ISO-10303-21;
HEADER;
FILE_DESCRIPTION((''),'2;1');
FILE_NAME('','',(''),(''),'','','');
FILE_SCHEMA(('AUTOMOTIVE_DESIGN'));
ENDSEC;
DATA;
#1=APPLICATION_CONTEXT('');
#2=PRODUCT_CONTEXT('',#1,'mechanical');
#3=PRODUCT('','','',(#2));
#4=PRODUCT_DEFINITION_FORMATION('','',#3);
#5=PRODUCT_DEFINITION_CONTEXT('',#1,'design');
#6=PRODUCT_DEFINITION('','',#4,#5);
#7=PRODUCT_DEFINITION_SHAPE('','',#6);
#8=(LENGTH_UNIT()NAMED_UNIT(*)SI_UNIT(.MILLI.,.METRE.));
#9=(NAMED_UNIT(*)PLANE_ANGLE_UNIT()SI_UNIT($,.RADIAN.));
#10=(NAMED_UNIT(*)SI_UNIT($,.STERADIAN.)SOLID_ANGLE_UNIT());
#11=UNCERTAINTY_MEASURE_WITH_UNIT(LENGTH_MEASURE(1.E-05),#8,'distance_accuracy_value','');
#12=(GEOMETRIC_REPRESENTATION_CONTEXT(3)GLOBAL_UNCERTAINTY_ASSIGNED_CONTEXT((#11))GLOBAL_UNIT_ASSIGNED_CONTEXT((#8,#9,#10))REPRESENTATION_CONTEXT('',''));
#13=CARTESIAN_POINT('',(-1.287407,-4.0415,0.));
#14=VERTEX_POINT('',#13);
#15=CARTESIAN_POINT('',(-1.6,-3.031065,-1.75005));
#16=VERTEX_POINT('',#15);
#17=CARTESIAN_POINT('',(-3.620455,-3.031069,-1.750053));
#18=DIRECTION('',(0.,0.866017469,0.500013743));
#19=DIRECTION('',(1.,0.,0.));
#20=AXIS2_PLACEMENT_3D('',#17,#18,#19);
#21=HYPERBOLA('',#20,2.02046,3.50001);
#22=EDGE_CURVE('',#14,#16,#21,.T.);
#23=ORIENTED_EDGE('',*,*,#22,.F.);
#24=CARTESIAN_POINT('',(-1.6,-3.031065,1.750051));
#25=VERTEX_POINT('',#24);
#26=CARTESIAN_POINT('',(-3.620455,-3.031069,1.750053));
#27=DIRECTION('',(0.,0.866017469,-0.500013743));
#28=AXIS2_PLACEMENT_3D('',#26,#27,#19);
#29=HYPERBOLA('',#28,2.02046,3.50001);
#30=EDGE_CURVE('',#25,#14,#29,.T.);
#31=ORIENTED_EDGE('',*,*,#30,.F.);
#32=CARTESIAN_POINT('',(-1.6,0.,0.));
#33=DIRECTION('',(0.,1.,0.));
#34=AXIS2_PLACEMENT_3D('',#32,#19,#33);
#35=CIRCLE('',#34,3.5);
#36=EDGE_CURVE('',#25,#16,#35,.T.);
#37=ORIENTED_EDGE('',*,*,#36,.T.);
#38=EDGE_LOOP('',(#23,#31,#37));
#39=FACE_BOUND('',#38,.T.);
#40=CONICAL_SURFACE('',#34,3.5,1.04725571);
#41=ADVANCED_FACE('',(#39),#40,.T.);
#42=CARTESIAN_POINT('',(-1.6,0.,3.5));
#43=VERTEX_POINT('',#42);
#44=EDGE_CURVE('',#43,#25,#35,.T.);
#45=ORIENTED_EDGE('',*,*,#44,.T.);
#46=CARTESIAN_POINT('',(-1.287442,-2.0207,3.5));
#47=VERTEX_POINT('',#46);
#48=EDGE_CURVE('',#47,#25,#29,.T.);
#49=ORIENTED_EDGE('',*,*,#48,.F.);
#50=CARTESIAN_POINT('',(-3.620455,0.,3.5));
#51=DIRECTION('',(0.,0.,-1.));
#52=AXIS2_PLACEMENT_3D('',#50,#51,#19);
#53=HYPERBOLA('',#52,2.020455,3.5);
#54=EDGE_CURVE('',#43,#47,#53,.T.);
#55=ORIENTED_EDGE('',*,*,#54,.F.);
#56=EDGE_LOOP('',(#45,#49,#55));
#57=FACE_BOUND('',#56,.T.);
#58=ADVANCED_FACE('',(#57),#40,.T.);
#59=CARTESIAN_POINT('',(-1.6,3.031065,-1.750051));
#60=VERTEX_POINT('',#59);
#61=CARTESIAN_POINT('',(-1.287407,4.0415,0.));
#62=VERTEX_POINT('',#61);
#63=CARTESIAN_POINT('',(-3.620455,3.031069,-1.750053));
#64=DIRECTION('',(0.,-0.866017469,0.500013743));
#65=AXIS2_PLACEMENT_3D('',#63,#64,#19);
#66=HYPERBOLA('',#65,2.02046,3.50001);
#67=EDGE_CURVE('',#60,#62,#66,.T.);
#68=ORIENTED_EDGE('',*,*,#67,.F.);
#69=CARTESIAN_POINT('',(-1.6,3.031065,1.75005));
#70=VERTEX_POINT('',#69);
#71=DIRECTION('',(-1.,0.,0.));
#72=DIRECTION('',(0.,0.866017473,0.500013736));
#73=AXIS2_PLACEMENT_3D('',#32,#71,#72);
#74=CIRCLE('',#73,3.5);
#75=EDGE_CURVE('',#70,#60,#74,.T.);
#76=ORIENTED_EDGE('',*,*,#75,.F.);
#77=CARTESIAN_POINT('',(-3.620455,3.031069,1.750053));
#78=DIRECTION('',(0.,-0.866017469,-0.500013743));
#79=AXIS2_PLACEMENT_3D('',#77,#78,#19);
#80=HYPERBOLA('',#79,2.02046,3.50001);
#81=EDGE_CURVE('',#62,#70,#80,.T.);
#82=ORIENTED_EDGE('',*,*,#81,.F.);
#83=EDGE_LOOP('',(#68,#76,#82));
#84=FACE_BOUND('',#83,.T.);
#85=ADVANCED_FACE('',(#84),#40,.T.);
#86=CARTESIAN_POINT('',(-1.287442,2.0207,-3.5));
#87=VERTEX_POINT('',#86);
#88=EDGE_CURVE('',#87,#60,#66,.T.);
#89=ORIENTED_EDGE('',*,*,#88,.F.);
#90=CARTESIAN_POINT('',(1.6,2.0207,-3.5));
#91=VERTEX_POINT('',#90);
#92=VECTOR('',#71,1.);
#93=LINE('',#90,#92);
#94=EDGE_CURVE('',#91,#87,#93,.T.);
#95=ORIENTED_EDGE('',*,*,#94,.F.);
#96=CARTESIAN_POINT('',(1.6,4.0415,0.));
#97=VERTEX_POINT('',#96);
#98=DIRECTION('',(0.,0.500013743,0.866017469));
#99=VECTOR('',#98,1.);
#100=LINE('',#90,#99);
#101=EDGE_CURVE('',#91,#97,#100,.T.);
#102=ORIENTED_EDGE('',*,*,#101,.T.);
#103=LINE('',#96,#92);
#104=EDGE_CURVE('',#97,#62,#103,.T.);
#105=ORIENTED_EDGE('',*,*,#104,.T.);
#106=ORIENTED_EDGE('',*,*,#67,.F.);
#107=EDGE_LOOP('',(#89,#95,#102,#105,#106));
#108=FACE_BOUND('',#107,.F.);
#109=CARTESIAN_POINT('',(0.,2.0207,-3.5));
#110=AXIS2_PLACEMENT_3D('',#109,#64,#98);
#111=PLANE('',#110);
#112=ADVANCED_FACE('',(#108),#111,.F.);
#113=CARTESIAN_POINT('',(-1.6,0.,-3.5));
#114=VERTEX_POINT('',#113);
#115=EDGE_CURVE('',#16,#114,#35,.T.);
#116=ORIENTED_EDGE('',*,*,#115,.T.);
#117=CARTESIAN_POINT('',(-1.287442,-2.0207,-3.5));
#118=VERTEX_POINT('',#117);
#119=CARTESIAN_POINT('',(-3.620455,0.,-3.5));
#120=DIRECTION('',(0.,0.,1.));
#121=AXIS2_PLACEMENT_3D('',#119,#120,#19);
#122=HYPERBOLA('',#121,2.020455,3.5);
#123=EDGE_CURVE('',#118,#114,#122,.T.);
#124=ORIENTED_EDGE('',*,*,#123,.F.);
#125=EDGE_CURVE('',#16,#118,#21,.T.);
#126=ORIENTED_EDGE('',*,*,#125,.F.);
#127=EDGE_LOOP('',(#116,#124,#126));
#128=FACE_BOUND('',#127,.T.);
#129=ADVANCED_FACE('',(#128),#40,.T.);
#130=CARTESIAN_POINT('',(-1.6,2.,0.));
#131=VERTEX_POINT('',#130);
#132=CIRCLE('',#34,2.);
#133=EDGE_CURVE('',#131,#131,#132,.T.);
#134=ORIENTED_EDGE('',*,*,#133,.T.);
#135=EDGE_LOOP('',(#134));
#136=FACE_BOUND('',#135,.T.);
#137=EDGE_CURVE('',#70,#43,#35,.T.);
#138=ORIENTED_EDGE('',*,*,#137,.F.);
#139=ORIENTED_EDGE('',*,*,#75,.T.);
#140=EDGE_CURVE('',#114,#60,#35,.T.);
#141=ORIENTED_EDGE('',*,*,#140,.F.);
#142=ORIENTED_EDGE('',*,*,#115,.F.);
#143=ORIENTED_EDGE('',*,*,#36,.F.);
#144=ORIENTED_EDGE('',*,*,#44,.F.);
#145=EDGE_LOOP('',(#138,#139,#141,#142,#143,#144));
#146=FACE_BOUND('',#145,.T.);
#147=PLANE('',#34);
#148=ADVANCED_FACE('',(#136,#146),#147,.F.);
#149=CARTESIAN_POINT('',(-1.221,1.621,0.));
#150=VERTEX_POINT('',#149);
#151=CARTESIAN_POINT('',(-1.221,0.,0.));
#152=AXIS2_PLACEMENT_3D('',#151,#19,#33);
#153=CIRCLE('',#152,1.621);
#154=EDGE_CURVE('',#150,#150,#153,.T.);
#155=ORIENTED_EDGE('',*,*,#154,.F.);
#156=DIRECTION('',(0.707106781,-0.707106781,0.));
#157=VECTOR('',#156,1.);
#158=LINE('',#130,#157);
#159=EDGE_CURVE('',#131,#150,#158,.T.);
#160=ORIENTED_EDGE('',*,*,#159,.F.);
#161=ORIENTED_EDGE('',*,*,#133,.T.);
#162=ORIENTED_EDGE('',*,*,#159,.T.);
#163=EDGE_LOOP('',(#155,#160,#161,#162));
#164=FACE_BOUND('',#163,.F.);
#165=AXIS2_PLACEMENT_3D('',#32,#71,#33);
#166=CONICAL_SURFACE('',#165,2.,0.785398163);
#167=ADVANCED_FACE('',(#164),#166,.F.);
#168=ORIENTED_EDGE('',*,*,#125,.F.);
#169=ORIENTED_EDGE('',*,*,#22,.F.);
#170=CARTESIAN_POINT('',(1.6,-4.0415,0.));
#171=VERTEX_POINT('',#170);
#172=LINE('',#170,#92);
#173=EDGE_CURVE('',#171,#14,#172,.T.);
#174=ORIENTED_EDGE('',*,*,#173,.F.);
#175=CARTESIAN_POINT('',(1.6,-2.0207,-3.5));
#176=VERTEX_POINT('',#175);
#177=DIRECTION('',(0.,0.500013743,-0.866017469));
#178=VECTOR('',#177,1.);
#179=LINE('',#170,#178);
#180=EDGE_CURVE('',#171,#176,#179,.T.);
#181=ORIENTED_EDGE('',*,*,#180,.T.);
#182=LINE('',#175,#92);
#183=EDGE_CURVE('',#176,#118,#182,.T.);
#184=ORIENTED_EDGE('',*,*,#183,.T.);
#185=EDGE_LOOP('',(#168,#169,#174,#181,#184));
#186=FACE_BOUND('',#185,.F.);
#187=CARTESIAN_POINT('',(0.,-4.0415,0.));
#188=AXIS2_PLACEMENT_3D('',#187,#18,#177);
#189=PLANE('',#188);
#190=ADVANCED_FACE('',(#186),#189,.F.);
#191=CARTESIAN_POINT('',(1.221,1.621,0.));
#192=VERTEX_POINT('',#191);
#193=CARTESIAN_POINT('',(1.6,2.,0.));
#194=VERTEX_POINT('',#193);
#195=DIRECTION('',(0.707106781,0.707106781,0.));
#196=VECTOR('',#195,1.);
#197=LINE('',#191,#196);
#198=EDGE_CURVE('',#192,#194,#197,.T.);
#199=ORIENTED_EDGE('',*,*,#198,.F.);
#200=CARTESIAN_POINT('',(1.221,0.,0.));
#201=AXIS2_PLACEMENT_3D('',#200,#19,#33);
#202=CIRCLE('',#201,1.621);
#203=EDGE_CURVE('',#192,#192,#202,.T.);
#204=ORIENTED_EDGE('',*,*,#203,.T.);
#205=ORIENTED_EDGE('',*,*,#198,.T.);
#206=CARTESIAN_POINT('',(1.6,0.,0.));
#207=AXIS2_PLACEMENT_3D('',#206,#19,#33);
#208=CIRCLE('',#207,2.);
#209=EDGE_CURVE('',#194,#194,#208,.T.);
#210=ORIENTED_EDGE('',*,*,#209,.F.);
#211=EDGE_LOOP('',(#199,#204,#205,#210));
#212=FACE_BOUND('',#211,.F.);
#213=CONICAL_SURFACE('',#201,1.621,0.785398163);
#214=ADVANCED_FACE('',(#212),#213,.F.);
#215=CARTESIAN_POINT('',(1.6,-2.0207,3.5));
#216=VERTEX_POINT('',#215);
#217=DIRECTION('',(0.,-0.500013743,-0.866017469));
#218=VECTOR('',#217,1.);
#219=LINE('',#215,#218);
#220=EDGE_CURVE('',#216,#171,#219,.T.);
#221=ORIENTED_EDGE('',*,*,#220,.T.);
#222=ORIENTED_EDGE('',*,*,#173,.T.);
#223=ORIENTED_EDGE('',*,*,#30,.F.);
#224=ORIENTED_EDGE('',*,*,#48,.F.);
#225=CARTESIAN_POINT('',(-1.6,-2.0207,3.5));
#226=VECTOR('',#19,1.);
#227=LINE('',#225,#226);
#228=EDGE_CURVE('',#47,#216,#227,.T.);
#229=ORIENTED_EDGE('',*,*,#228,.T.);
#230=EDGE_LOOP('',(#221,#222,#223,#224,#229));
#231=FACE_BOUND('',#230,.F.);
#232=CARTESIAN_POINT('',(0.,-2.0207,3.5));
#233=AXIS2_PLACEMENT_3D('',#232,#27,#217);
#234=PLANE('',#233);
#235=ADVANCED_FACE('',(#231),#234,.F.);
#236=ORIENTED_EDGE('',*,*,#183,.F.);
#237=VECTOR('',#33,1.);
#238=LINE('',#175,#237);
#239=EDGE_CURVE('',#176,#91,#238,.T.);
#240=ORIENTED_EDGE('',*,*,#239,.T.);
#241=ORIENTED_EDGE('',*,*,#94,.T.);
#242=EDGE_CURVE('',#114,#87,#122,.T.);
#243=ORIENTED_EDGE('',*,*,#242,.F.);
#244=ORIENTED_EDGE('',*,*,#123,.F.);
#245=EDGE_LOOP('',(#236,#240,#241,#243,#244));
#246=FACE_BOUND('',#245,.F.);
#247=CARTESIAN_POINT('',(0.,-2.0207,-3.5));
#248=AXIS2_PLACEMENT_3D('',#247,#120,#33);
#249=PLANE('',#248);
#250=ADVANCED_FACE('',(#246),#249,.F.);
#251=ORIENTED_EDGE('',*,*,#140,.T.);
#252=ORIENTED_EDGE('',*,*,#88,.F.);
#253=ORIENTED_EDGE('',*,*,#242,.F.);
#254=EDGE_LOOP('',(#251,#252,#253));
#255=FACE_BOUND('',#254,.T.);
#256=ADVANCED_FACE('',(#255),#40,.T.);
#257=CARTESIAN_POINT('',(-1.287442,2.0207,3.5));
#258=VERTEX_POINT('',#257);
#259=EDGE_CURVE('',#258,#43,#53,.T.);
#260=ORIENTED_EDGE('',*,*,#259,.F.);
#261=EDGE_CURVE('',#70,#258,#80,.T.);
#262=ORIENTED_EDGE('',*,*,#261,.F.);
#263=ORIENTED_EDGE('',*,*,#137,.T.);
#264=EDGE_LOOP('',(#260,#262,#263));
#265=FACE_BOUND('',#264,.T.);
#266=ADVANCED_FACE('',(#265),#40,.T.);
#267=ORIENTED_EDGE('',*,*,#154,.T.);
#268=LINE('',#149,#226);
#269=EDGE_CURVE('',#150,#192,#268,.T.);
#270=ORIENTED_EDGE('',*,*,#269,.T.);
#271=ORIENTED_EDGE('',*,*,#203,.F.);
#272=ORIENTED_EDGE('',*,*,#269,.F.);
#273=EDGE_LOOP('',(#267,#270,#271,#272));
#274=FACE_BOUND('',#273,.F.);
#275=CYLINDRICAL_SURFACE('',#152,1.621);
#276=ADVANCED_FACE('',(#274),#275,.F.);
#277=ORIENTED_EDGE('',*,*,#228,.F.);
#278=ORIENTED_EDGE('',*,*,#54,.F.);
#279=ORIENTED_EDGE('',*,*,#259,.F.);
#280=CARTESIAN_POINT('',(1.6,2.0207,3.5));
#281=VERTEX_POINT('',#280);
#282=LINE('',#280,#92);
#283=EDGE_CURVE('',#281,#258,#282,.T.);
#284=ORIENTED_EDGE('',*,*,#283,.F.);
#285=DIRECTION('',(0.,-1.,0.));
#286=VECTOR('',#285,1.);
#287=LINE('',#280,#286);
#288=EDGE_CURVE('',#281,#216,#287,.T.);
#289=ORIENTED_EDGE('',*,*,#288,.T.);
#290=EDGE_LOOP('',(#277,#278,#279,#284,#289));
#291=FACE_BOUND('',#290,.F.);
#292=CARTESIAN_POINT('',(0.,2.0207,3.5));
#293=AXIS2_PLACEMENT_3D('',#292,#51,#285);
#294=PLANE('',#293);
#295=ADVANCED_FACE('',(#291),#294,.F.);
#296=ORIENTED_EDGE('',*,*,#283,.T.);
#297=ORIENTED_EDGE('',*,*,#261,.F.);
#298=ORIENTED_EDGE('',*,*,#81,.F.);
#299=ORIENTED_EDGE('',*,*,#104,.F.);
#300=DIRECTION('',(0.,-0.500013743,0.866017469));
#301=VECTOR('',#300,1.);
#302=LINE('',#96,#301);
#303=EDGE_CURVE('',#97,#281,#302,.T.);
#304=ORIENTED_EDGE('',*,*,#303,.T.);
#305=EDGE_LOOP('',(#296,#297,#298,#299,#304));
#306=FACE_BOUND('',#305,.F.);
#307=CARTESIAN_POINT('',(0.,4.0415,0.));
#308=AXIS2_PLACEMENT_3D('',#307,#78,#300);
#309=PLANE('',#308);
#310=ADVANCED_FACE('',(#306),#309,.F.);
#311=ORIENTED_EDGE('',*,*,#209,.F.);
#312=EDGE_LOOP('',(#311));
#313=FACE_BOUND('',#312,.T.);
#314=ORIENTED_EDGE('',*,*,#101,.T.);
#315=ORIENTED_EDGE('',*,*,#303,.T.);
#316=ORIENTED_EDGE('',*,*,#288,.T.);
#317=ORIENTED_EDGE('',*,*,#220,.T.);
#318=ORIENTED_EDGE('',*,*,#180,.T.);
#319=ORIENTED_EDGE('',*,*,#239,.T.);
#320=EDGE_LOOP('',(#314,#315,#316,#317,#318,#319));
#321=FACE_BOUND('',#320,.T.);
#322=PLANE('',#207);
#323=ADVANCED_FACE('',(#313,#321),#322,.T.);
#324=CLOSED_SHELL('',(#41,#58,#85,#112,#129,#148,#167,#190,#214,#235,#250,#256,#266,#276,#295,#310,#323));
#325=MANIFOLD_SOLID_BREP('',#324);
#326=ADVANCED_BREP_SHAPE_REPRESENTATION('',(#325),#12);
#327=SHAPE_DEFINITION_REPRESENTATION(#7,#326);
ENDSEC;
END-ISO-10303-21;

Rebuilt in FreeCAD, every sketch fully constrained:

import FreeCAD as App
import Part
import Sketcher
from FreeCAD import Vector
Q = App.Units.Quantity

doc = App.newDocument("Part")
body = doc.addObject("PartDesign::Body", "Body")

# Sketch on XY plane
sketch1 = body.newObject("Sketcher::SketchObject", "Sketch")
sketch1.AttachmentSupport = (doc.getObject("XY_Plane"), [""])
sketch1.MapMode = "FlatFace"
sketch1.addGeometry([
    Part.LineSegment(Vector(-1.6, 0, 0), Vector(1.6, 0, 0)),  # 0
    Part.LineSegment(Vector(1.6, 0, 0), Vector(1.6, 4.05, 0)),  # 1
    Part.LineSegment(Vector(1.6, 4.05, 0), Vector(-1.2825, 4.05, 0)),  # 2
    Part.LineSegment(Vector(-1.2825, 4.05, 0), Vector(-1.6, 3.5, 0)),  # 3
    Part.LineSegment(Vector(-1.6, 3.5, 0), Vector(-1.6, 0, 0)),  # 4
], False)
sketch1.addConstraint([
    Sketcher.Constraint("Coincident", 0, 2, 1, 1),
    Sketcher.Constraint("Coincident", 1, 2, 2, 1),
    Sketcher.Constraint("Coincident", 2, 2, 3, 1),
    Sketcher.Constraint("Coincident", 3, 2, 4, 1),
    Sketcher.Constraint("Coincident", 4, 2, 0, 1),
    Sketcher.Constraint("Horizontal", 0),
    Sketcher.Constraint("Vertical", 1),
    Sketcher.Constraint("Horizontal", 2),
    Sketcher.Constraint("Vertical", 4),
    Sketcher.Constraint("Symmetric", 0, 2, 4, 2, -1, 1),
    Sketcher.Constraint("DistanceX", 0, 1, 0, 2, 3.2),
    Sketcher.Constraint("DistanceY", 4, 2, 4, 1, 3.5),
    Sketcher.Constraint("DistanceY", 1, 1, 1, 2, 4.05),
    Sketcher.Constraint("Distance", 3, 0.635),
])
revolution = body.newObject("PartDesign::Revolution", "Revolution")
revolution.Profile = sketch1
revolution.ReferenceAxis = (sketch1, ["H_Axis"])
revolution.Angle = 360

# Sketch on XY plane
sketch2 = body.newObject("Sketcher::SketchObject", "Sketch001")
sketch2.AttachmentSupport = (doc.getObject("XY_Plane"), [""])
sketch2.MapMode = "FlatFace"
sketch2.addGeometry([
    Part.LineSegment(Vector(-1.6, 0, 0), Vector(1.6, 0, 0)),  # 0
    Part.LineSegment(Vector(1.6, 0, 0), Vector(1.6, 2, 0)),  # 1
    Part.LineSegment(Vector(1.6, 2, 0), Vector(1.221, 1.621, 0)),  # 2
    Part.LineSegment(Vector(1.221, 1.621, 0), Vector(-1.221, 1.621, 0)),  # 3
    Part.LineSegment(Vector(-1.221, 1.621, 0), Vector(-1.6, 2, 0)),  # 4
    Part.LineSegment(Vector(-1.6, 2, 0), Vector(-1.6, 0, 0)),  # 5
], False)
sketch2.addConstraint([
    Sketcher.Constraint("Coincident", 0, 2, 1, 1),
    Sketcher.Constraint("Coincident", 1, 2, 2, 1),
    Sketcher.Constraint("Coincident", 2, 2, 3, 1),
    Sketcher.Constraint("Coincident", 3, 2, 4, 1),
    Sketcher.Constraint("Coincident", 4, 2, 5, 1),
    Sketcher.Constraint("Coincident", 5, 2, 0, 1),
    Sketcher.Constraint("Horizontal", 0),
    Sketcher.Constraint("Vertical", 1),
    Sketcher.Constraint("Horizontal", 3),
    Sketcher.Constraint("Vertical", 5),
    Sketcher.Constraint("Symmetric", 0, 2, 5, 2, -1, 1),
    Sketcher.Constraint("Perpendicular", 2, 4),
    Sketcher.Constraint("Horizontal", 1, 2, 4, 2),
    Sketcher.Constraint("Equal", 2, 4),
    Sketcher.Constraint("DistanceY", 1, 1, 1, 2, 2.0),
    Sketcher.Constraint("DistanceX", 0, 1, 0, 2, 3.2),
    Sketcher.Constraint("DistanceX", 3, 2, 3, 1, 2.442),
])
groove = body.newObject("PartDesign::Groove", "Groove")
groove.Profile = sketch2
groove.ReferenceAxis = (sketch2, ["H_Axis"])
groove.Angle = 360

# Sketch on YZ plane
sketch3 = body.newObject("Sketcher::SketchObject", "Sketch002")
sketch3.AttachmentSupport = (doc.getObject("YZ_Plane"), [""])
sketch3.MapMode = "FlatFace"
sketch3.addGeometry([
    Part.LineSegment(Vector(7, 7, 0), Vector(-7, 7, 0)),  # 0
    Part.LineSegment(Vector(-7, 7, 0), Vector(-7, -7, 0)),  # 1
    Part.LineSegment(Vector(-7, -7, 0), Vector(7, -7, 0)),  # 2
    Part.LineSegment(Vector(7, -7, 0), Vector(7, 7, 0)),  # 3
    Part.LineSegment(Vector(-4.0415, 0, 0), Vector(-2.0207, 3.5, 0)),  # 4
    Part.LineSegment(Vector(-2.0207, 3.5, 0), Vector(2.0207, 3.5, 0)),  # 5
    Part.LineSegment(Vector(2.0207, 3.5, 0), Vector(4.0415, 0, 0)),  # 6
    Part.LineSegment(Vector(4.0415, 0, 0), Vector(2.0207, -3.5, 0)),  # 7
    Part.LineSegment(Vector(2.0207, -3.5, 0), Vector(-2.0207, -3.5, 0)),  # 8
    Part.LineSegment(Vector(-2.0207, -3.5, 0), Vector(-4.0415, 0, 0)),  # 9
], False)
sketch3.addConstraint([
    Sketcher.Constraint("Coincident", 0, 2, 1, 1),
    Sketcher.Constraint("Coincident", 1, 2, 2, 1),
    Sketcher.Constraint("Coincident", 2, 2, 3, 1),
    Sketcher.Constraint("Coincident", 3, 2, 0, 1),
    Sketcher.Constraint("Coincident", 4, 2, 5, 1),
    Sketcher.Constraint("Coincident", 5, 2, 6, 1),
    Sketcher.Constraint("Coincident", 6, 2, 7, 1),
    Sketcher.Constraint("Coincident", 7, 2, 8, 1),
    Sketcher.Constraint("Coincident", 8, 2, 9, 1),
    Sketcher.Constraint("Coincident", 9, 2, 4, 1),
    Sketcher.Constraint("Horizontal", 0),
    Sketcher.Constraint("Vertical", 1),
    Sketcher.Constraint("Horizontal", 2),
    Sketcher.Constraint("Vertical", 3),
    Sketcher.Constraint("Horizontal", 5),
    Sketcher.Constraint("Horizontal", 8),
    Sketcher.Constraint("Symmetric", 0, 2, 2, 2, -1, 1),
    Sketcher.Constraint("Symmetric", 4, 2, 7, 2, -1, 1),
    Sketcher.Constraint("Symmetric", 6, 2, 9, 2, -1, 1),
    Sketcher.Constraint("PointOnObject", 6, 2, -1),
    Sketcher.Constraint("Parallel", 6, 9),
    Sketcher.Constraint("Vertical", 5, 2, 7, 2),
    Sketcher.Constraint("Equal", 2, 1),
    Sketcher.Constraint("DistanceX", 0, 2, 0, 1, 14.0),
    Sketcher.Constraint("Angle", 4, Q("59.999 deg")),
    Sketcher.Constraint("DistanceY", 7, 2, 5, 2, 7.0),
    Sketcher.Constraint("DistanceX", 5, 1, 5, 2, 4.0414),
])
pocket1 = body.newObject("PartDesign::Pocket", "Pocket")
pocket1.Profile = sketch3
pocket1.Length = 3.2
pocket1.Midplane = True

doc.recompute()
